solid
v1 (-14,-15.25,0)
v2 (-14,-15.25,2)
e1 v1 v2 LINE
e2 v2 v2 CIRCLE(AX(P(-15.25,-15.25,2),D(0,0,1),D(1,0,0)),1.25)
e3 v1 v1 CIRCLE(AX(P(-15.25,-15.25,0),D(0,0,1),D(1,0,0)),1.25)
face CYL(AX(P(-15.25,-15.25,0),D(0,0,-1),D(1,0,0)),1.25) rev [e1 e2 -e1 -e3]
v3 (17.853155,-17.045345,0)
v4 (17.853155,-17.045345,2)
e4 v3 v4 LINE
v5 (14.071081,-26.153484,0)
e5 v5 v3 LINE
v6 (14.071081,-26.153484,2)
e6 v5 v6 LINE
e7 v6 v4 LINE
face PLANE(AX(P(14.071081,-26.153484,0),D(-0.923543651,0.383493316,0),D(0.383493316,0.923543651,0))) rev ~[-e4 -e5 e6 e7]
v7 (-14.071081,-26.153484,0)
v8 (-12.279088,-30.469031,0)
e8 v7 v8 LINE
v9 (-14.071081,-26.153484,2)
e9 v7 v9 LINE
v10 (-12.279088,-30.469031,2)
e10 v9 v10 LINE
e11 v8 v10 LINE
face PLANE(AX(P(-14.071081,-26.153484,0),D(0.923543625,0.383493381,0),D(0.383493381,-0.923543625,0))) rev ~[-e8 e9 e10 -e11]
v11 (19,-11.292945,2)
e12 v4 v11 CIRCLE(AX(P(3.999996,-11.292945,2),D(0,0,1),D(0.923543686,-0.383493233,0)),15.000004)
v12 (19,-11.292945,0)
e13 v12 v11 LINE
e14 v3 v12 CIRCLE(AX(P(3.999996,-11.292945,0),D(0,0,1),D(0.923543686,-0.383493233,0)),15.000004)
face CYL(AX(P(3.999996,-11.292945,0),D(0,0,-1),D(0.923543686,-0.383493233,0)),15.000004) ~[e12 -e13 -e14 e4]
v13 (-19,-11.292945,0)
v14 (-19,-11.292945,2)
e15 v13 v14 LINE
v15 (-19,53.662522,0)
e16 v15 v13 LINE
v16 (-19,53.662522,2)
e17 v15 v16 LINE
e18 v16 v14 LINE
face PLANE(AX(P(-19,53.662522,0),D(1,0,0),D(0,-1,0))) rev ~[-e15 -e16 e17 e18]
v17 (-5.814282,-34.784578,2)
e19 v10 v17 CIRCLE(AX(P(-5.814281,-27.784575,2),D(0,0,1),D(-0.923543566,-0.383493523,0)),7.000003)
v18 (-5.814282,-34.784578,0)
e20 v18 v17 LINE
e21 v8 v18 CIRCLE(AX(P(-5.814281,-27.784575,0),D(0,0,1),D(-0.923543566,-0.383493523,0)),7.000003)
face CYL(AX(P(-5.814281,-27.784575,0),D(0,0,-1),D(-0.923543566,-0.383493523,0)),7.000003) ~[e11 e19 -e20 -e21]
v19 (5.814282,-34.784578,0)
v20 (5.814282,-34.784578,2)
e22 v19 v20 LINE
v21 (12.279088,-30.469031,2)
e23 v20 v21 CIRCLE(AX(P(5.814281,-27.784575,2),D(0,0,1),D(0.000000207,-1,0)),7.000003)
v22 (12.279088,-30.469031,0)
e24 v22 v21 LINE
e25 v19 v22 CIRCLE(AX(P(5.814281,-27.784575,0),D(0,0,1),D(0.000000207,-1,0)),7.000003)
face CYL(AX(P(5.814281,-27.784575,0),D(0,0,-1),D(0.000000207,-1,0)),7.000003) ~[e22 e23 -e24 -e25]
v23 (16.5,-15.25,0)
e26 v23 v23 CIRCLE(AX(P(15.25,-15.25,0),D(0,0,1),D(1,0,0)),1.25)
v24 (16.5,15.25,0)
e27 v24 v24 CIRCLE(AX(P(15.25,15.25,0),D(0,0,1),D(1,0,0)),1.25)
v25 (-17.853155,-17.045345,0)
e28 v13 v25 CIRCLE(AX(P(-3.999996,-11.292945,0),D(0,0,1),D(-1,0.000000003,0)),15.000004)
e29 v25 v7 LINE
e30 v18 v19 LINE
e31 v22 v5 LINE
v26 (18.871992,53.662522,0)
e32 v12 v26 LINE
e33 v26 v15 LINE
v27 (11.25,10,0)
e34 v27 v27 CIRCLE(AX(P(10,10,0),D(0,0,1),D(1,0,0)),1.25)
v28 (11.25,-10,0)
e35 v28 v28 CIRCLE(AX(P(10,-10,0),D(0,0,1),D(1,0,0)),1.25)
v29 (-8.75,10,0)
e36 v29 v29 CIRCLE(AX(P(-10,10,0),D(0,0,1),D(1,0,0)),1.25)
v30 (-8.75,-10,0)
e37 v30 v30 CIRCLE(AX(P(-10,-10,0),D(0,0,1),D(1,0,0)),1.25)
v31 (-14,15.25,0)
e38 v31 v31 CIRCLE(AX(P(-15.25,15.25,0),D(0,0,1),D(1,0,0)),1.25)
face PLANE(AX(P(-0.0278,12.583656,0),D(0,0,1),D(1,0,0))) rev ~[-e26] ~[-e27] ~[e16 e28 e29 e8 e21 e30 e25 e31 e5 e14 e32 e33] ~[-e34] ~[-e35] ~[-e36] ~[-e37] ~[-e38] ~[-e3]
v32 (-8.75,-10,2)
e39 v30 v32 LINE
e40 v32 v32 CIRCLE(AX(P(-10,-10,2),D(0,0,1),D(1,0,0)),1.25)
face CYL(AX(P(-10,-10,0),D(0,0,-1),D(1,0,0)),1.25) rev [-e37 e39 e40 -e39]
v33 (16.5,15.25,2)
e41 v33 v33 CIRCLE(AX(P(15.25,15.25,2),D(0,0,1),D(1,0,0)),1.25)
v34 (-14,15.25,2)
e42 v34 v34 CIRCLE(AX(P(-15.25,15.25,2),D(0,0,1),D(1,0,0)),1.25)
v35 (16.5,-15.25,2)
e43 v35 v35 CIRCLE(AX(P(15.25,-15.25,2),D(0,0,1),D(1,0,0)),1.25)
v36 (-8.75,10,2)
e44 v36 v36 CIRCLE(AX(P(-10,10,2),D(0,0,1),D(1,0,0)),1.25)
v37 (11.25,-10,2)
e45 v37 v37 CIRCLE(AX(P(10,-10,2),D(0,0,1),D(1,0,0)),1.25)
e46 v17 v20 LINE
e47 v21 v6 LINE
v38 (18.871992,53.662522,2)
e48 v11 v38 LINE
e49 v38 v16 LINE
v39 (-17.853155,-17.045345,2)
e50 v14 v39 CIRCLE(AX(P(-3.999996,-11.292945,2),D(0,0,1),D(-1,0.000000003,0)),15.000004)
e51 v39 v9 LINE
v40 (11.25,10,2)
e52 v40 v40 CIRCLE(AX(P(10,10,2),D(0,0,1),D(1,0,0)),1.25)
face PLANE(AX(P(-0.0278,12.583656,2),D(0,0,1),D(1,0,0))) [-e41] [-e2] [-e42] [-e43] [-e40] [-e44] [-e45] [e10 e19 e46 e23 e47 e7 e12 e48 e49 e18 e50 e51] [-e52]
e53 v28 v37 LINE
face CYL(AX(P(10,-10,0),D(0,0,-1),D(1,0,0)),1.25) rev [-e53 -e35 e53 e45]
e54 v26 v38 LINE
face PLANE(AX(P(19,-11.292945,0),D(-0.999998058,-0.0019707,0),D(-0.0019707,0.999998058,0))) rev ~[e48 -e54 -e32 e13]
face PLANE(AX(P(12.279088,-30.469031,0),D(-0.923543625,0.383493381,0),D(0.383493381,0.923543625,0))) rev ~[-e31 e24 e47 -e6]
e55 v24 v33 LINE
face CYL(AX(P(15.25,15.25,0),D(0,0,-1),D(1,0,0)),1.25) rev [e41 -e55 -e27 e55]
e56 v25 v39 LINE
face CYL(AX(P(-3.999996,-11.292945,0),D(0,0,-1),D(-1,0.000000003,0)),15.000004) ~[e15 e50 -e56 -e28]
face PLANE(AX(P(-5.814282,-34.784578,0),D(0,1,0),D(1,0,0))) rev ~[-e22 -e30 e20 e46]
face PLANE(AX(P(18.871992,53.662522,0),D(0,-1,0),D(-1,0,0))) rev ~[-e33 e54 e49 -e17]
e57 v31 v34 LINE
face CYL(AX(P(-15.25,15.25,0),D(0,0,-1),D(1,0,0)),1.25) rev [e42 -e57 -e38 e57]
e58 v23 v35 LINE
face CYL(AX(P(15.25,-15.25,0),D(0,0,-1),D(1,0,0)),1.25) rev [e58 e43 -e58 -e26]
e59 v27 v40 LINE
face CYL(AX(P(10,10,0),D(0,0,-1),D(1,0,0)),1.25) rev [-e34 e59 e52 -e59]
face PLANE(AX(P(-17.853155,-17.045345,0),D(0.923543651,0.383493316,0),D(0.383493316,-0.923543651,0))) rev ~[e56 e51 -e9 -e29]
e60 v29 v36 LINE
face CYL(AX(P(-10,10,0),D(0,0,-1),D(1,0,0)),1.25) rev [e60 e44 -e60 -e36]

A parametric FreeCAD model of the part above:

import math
import FreeCAD as App
import Part
import Sketcher
from FreeCAD import Vector

doc = App.newDocument("Part")
body = doc.addObject("PartDesign::Body", "Body")

# Sketch on XY plane
sketch1 = doc.addObject("Sketcher::SketchObject", "Sketch")
body.addObject(sketch1)
sketch1.AttachmentSupport = (doc.XY_Plane, [""])
sketch1.MapMode = "FlatFace"
sketch1.addGeometry([
    Part.LineSegment(Vector(18.871992, 53.662522, 0), Vector(-19, 53.662522, 0)),  # 0
    Part.LineSegment(Vector(-19, 53.662522, 0), Vector(-19, -11.292945, 0)),  # 1
    Part.ArcOfCircle(Part.Circle(Vector(-3.999996, -11.292945, 0), Vector(0, 0, 1), 15.000004), math.radians(180), math.radians(202.55023)),  # 2
    Part.LineSegment(Vector(-17.853155, -17.045345, 0), Vector(-14.071081, -26.153484, 0)),  # 3
    Part.LineSegment(Vector(-14.071081, -26.153484, 0), Vector(-12.279088, -30.469031, 0)),  # 4
    Part.ArcOfCircle(Part.Circle(Vector(-5.814281, -27.784575, 0), Vector(0, 0, 1), 7.000003), math.radians(-157.449752), math.radians(-90.000012)),  # 5
    Part.LineSegment(Vector(-5.814282, -34.784578, 0), Vector(5.814282, -34.784578, 0)),  # 6
    Part.ArcOfCircle(Part.Circle(Vector(5.814281, -27.784575, 0), Vector(0, 0, 1), 7.000003), math.radians(-89.999988), math.radians(-22.550248)),  # 7
    Part.LineSegment(Vector(12.279088, -30.469031, 0), Vector(14.071081, -26.153484, 0)),  # 8
    Part.LineSegment(Vector(14.071081, -26.153484, 0), Vector(17.853155, -17.045345, 0)),  # 9
    Part.ArcOfCircle(Part.Circle(Vector(3.999996, -11.292945, 0), Vector(0, 0, 1), 15.000004), math.radians(-22.55023), math.radians(0)),  # 10
    Part.LineSegment(Vector(19, -11.292945, 0), Vector(18.871992, 53.662522, 0)),  # 11
    Part.Circle(Vector(-15.25, -15.25, 0), Vector(0, 0, 1), 1.25),  # 12
    Part.Circle(Vector(-10, -10, 0), Vector(0, 0, 1), 1.25),  # 13
    Part.Circle(Vector(15.25, -15.25, 0), Vector(0, 0, 1), 1.25),  # 14
    Part.Circle(Vector(10, -10, 0), Vector(0, 0, 1), 1.25),  # 15
    Part.Circle(Vector(-10, 10, 0), Vector(0, 0, 1), 1.25),  # 16
    Part.Circle(Vector(-15.25, 15.25, 0), Vector(0, 0, 1), 1.25),  # 17
    Part.Circle(Vector(10, 10, 0), Vector(0, 0, 1), 1.25),  # 18
    Part.Circle(Vector(15.25, 15.25, 0), Vector(0, 0, 1), 1.25),  # 19
], False)
sketch1.addConstraint([
    Sketcher.Constraint("Coincident", 0, 2, 1, 1),
    Sketcher.Constraint("Tangent", 1, 2, 2, 1),
    Sketcher.Constraint("Tangent", 2, 2, 3, 1),
    Sketcher.Constraint("Coincident", 3, 2, 4, 1),
    Sketcher.Constraint("Tangent", 4, 2, 5, 1),
    Sketcher.Constraint("Tangent", 5, 2, 6, 1),
    Sketcher.Constraint("Tangent", 6, 2, 7, 1),
    Sketcher.Constraint("Tangent", 7, 2, 8, 1),
    Sketcher.Constraint("Coincident", 8, 2, 9, 1),
    Sketcher.Constraint("Tangent", 9, 2, 10, 1),
    Sketcher.Constraint("Coincident", 10, 2, 11, 1),
    Sketcher.Constraint("Coincident", 11, 2, 0, 1),
    Sketcher.Constraint("Horizontal", 0),
    Sketcher.Constraint("Vertical", 1),
    Sketcher.Constraint("Horizontal", 6),
    Sketcher.Constraint("Equal", 5, 7),
    Sketcher.Constraint("Equal", 2, 10),
    Sketcher.Constraint("Equal", 12, 13),
    Sketcher.Constraint("Equal", 13, 14),
    Sketcher.Constraint("Equal", 14, 15),
    Sketcher.Constraint("Equal", 15, 16),
    Sketcher.Constraint("Equal", 16, 17),
    Sketcher.Constraint("Equal", 17, 18),
    Sketcher.Constraint("Equal", 18, 19),
    Sketcher.Constraint("Symmetric", 15, 3, 16, 3, -1, 1),
    Sketcher.Constraint("Symmetric", 14, 3, 17, 3, -1, 1),
    Sketcher.Constraint("Symmetric", 13, 3, 18, 3, -1, 1),
    Sketcher.Constraint("Symmetric", 12, 3, 19, 3, -1, 1),
    Sketcher.Constraint("Symmetric", 2, 3, 10, 3, -2),
    Sketcher.Constraint("Symmetric", 12, 3, 14, 3, -2),
    Sketcher.Constraint("Symmetric", 13, 3, 15, 3, -2),
    Sketcher.Constraint("Symmetric", 4, 2, 7, 2, -2),
    Sketcher.Constraint("Parallel", 3, 4),
    Sketcher.Constraint("Horizontal", 3, 2, 8, 2),
    Sketcher.Constraint("Horizontal", 1, 2, 10, 2),
    Sketcher.Constraint("Diameter", 12, 2.5),
    Sketcher.Constraint("DistanceX", 13, 3, -1, 1, 10.0),
    Sketcher.Constraint("DistanceY", 13, 3, -1, 1, 10.0),
    Sketcher.Constraint("DistanceX", 0, 2, -1, 1, 19.0),
    Sketcher.Constraint("DistanceY", 12, 3, 17, 3, 30.5),
    Sketcher.Constraint("DistanceX", 12, 3, -1, 1, 15.25),
    Sketcher.Constraint("Radius", 2, 15.000004),
    Sketcher.Constraint("Radius", 5, 7.000003),
    Sketcher.Constraint("DistanceY", 2, 2, 1, 2, 5.7524),
    Sketcher.Constraint("DistanceX", 3, 2, 5, 3, 8.2568),
    Sketcher.Constraint("DistanceX", 0, 2, 0, 1, 37.871992),
    Sketcher.Constraint("DistanceX", 6, 1, 6, 2, 11.628564),
    Sketcher.Constraint("DistanceY", 1, 2, 1, 1, 64.955467),
    Sketcher.Constraint("DistanceY", 4, 2, -1, 1, 30.469031),
])
pad1 = doc.addObject("PartDesign::Pad", "Pad")
body.addObject(pad1)
pad1.Profile = sketch1
pad1.Length = 2

doc.recompute()
